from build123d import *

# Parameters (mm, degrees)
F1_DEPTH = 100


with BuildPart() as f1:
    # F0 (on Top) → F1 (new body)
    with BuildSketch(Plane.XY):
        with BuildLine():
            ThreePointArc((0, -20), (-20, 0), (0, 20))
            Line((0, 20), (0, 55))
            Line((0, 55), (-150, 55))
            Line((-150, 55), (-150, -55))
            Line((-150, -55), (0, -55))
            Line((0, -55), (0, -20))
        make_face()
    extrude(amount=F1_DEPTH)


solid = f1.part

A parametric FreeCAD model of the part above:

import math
import FreeCAD as App
import Part
import Sketcher
Q = App.Units.Quantity

doc = App.newDocument("Part")
body = doc.addObject("PartDesign::Body", "Body")

sketch1 = body.newObject("Sketcher::SketchObject", "Sketch")
sketch1.AttachmentSupport = (doc.getObject("XY_Plane"), [""])
sketch1.MapMode = "FlatFace"
sketch1.addGeometry([
    Part.ArcOfCircle(Part.Circle(App.Vector(0, 0, 0), App.Vector(0, 0, 1), 20), math.radians(90), math.radians(270)),
    Part.LineSegment(App.Vector(0, 20, 0), App.Vector(0, 55, 0)),
    Part.LineSegment(App.Vector(0, 55, 0), App.Vector(-150, 55, 0)),
    Part.LineSegment(App.Vector(-150, 55, 0), App.Vector(-150, -55, 0)),
    Part.LineSegment(App.Vector(-150, -55, 0), App.Vector(0, -55, 0)),
    Part.LineSegment(App.Vector(0, -55, 0), App.Vector(0, -20, 0)),
], False)
sketch1.addConstraint([
    Sketcher.Constraint("Coincident", 0, 1, 1, 1),
    Sketcher.Constraint("Coincident", 1, 2, 2, 1),
    Sketcher.Constraint("Coincident", 2, 2, 3, 1),
    Sketcher.Constraint("Coincident", 3, 2, 4, 1),
    Sketcher.Constraint("Coincident", 4, 2, 5, 1),
    Sketcher.Constraint("Coincident", 5, 2, 0, 2),
    Sketcher.Constraint("Vertical", 1),
    Sketcher.Constraint("Horizontal", 2),
    Sketcher.Constraint("Vertical", 3),
    Sketcher.Constraint("Horizontal", 4),
    Sketcher.Constraint("Vertical", 5),
    Sketcher.Constraint("Coincident", 0, 3, -1, 1),
    Sketcher.Constraint("Symmetric", 1, 2, 4, 2, -1, 1),
    Sketcher.Constraint("PointOnObject", 0, 1, -2),
    Sketcher.Constraint("Radius", 0, Q("20 mm")),
    Sketcher.Constraint("DistanceX", 2, 2, 2, 1, Q("150 mm")),
    Sketcher.Constraint("DistanceY", 1, 1, 1, 2, Q("35 mm")),
])
pad1 = body.newObject("PartDesign::Pad", "Pad")
pad1.Profile = sketch1
pad1.Length = 100

doc.recompute()
